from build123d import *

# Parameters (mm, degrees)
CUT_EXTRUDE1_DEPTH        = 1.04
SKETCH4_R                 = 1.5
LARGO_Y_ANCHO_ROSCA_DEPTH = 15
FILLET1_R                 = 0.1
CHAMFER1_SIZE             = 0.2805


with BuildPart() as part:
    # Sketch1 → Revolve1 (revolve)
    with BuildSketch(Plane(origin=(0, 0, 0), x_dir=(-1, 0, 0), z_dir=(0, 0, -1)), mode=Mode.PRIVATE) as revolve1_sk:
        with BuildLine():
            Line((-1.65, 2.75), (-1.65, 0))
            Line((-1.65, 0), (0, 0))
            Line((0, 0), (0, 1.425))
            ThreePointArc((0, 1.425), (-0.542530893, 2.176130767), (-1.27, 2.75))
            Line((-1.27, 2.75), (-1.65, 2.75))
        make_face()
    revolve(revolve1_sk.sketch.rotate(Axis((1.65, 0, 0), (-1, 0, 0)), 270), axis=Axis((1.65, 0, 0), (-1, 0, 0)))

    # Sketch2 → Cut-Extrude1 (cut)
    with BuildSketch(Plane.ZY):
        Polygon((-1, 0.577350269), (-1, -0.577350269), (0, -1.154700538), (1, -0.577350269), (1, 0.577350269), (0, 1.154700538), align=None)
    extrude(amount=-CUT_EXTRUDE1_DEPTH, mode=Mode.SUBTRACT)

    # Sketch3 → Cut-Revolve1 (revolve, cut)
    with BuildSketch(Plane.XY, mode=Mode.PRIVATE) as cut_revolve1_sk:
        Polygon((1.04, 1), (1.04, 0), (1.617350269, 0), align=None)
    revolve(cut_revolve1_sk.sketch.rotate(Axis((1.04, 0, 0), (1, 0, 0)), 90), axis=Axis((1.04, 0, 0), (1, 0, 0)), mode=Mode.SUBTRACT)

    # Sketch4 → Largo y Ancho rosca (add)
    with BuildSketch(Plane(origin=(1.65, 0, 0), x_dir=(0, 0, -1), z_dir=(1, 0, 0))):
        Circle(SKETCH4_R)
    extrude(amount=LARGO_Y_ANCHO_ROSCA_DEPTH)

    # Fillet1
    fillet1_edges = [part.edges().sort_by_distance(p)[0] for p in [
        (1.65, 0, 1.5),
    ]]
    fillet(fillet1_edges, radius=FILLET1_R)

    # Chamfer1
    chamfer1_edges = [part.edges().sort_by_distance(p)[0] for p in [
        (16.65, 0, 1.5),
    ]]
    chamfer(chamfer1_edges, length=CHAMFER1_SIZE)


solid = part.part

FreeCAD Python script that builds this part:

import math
import FreeCAD as App
import Part
import Sketcher
from FreeCAD import Vector
Q = App.Units.Quantity


def edges_at(feature, points):
    """Names of the edges that pass closest to the given points."""
    edges = feature.Shape.Edges
    near = lambda p: min(range(len(edges)), key=lambda i: edges[i].distToShape(Part.Vertex(*p))[0])
    return sorted({f"Edge{near(p) + 1}" for p in points})

doc = App.newDocument("Part")
body = doc.addObject("PartDesign::Body", "Body")

# Sketch on XY plane
sketch1 = body.newObject("Sketcher::SketchObject", "Sketch")
sketch1.AttachmentSupport = (doc.getObject("XY_Plane"), [""])
sketch1.MapMode = "FlatFace"
sketch1.addGeometry([
    Part.LineSegment(Vector(1.65, 2.75, 0), Vector(1.65, 0, 0)),  # 0
    Part.LineSegment(Vector(1.65, 0, 0), Vector(0, 0, 0)),  # 1
    Part.LineSegment(Vector(0, 0, 0), Vector(0, 1.43, 0)),  # 2
    Part.ArcOfCircle(Part.Circle(Vector(2.96, -0.14, 0), Vector(0, 0, 1), 3.35), math.radians(120), math.radians(152)),  # 3
    Part.LineSegment(Vector(1.27, 2.75, 0), Vector(1.65, 2.75, 0)),  # 4
], False)
sketch1.addConstraint([
    Sketcher.Constraint("Coincident", 0, 2, 1, 1),
    Sketcher.Constraint("Coincident", 1, 2, 2, 1),
    Sketcher.Constraint("Coincident", 2, 2, 3, 2),
    Sketcher.Constraint("Coincident", 3, 1, 4, 1),
    Sketcher.Constraint("Coincident", 4, 2, 0, 1),
    Sketcher.Constraint("Vertical", 0),
    Sketcher.Constraint("Horizontal", 1),
    Sketcher.Constraint("Vertical", 2),
    Sketcher.Constraint("Horizontal", 4),
    Sketcher.Constraint("Coincident", 1, 2, -1, 1),
    Sketcher.Constraint("DistanceX", 1, 2, 1, 1, 1.65),
    Sketcher.Constraint("DistanceX", 4, 1, 4, 2, 0.38),
    Sketcher.Constraint("DistanceY", 0, 2, 0, 1, 2.75),
    Sketcher.Constraint("DistanceY", 2, 1, 2, 2, 1.425),
    Sketcher.Constraint("Radius", 3, 3.351417),
])
revolution = body.newObject("PartDesign::Revolution", "Revolution")
revolution.Profile = sketch1
revolution.ReferenceAxis = (sketch1, ["H_Axis"])
revolution.Angle = 360

# Sketch on YZ plane
sketch2 = body.newObject("Sketcher::SketchObject", "Sketch001")
sketch2.AttachmentSupport = (doc.getObject("YZ_Plane"), [""])
sketch2.MapMode = "FlatFace"
sketch2.addGeometry([
    Part.LineSegment(Vector(0.6, -1, 0), Vector(-0.6, -1, 0)),  # 0
    Part.LineSegment(Vector(-0.6, -1, 0), Vector(-1.2, 0, 0)),  # 1
    Part.LineSegment(Vector(-1.2, 0, 0), Vector(-0.6, 1, 0)),  # 2
    Part.LineSegment(Vector(-0.6, 1, 0), Vector(0.6, 1, 0)),  # 3
    Part.LineSegment(Vector(0.6, 1, 0), Vector(1.2, 0, 0)),  # 4
    Part.LineSegment(Vector(1.2, 0, 0), Vector(0.6, -1, 0)),  # 5
], False)
sketch2.addConstraint([
    Sketcher.Constraint("Coincident", 0, 2, 1, 1),
    Sketcher.Constraint("Coincident", 1, 2, 2, 1),
    Sketcher.Constraint("Coincident", 2, 2, 3, 1),
    Sketcher.Constraint("Coincident", 3, 2, 4, 1),
    Sketcher.Constraint("Coincident", 4, 2, 5, 1),
    Sketcher.Constraint("Coincident", 5, 2, 0, 1),
    Sketcher.Constraint("Horizontal", 0),
    Sketcher.Constraint("Horizontal", 3),
    Sketcher.Constraint("Symmetric", 0, 2, 3, 2, -1, 1),
    Sketcher.Constraint("Symmetric", 1, 2, 4, 2, -1, 1),
    Sketcher.Constraint("PointOnObject", 1, 2, -1),
    Sketcher.Constraint("Parallel", 2, 5),
    Sketcher.Constraint("Vertical", 0, 2, 2, 2),
    Sketcher.Constraint("Angle", 1, Q("120 deg")),
    Sketcher.Constraint("DistanceY", 0, 2, -1, 1, 1.0),
    Sketcher.Constraint("DistanceX", 0, 2, 0, 1, 1.154701),
])
pocket1 = body.newObject("PartDesign::Pocket", "Pocket")
pocket1.Profile = sketch2
pocket1.Length = 1.04
pocket1.Reversed = True

# Sketch on XY plane
sketch3 = body.newObject("Sketcher::SketchObject", "Sketch002")
sketch3.AttachmentSupport = (doc.getObject("XY_Plane"), [""])
sketch3.MapMode = "FlatFace"
sketch3.addGeometry([
    Part.LineSegment(Vector(1, 1, 0), Vector(1, 0, 0)),
    Part.LineSegment(Vector(1, 0, 0), Vector(1.6, 0, 0)),
    Part.LineSegment(Vector(1.6, 0, 0), Vector(1, 1, 0)),
], False)
sketch3.addConstraint([
    Sketcher.Constraint("Coincident", 0, 2, 1, 1),
    Sketcher.Constraint("Coincident", 1, 2, 2, 1),
    Sketcher.Constraint("Coincident", 2, 2, 0, 1),
    Sketcher.Constraint("Vertical", 0),
    Sketcher.Constraint("Horizontal", 1),
    Sketcher.Constraint("PointOnObject", 0, 2, -1),
    Sketcher.Constraint("DistanceY", 0, 2, 0, 1, 1.0),
    Sketcher.Constraint("Angle", 2, Q("120 deg")),
    Sketcher.Constraint("DistanceX", -1, 1, 0, 2, 1.04),
])
groove = body.newObject("PartDesign::Groove", "Groove")
groove.Profile = sketch3
groove.ReferenceAxis = (sketch3, ["H_Axis"])
groove.Angle = 360

# Sketch on YZ plane
sketch4 = body.newObject("Sketcher::SketchObject", "Sketch003")
sketch4.AttachmentSupport = (doc.getObject("YZ_Plane"), [""])
sketch4.MapMode = "FlatFace"
sketch4.AttachmentOffset = App.Placement(Vector(0, 0, 1.65), App.Rotation())
sketch4.addGeometry(Part.Circle(Vector(0, 0, 0), Vector(0, 0, 1), 1.5), False)
sketch4.addConstraint([
    Sketcher.Constraint("Coincident", 0, 3, -1, 1),
    Sketcher.Constraint("Diameter", 0, 3.0),
])
pad1 = body.newObject("PartDesign::Pad", "Pad")
pad1.Profile = sketch4
pad1.Length = 15
doc.recompute()

fillet = body.newObject("PartDesign::Fillet", "Fillet")
fillet.Base = (pad1, edges_at(pad1, [(1.65, 0, 1.5)]))
fillet.Radius = 0.1
doc.recompute()

chamfer = body.newObject("PartDesign::Chamfer", "Chamfer")
chamfer.Base = (fillet, edges_at(fillet, [(16.65, 0, 1.5)]))
chamfer.Size = 0.2805

doc.recompute()
